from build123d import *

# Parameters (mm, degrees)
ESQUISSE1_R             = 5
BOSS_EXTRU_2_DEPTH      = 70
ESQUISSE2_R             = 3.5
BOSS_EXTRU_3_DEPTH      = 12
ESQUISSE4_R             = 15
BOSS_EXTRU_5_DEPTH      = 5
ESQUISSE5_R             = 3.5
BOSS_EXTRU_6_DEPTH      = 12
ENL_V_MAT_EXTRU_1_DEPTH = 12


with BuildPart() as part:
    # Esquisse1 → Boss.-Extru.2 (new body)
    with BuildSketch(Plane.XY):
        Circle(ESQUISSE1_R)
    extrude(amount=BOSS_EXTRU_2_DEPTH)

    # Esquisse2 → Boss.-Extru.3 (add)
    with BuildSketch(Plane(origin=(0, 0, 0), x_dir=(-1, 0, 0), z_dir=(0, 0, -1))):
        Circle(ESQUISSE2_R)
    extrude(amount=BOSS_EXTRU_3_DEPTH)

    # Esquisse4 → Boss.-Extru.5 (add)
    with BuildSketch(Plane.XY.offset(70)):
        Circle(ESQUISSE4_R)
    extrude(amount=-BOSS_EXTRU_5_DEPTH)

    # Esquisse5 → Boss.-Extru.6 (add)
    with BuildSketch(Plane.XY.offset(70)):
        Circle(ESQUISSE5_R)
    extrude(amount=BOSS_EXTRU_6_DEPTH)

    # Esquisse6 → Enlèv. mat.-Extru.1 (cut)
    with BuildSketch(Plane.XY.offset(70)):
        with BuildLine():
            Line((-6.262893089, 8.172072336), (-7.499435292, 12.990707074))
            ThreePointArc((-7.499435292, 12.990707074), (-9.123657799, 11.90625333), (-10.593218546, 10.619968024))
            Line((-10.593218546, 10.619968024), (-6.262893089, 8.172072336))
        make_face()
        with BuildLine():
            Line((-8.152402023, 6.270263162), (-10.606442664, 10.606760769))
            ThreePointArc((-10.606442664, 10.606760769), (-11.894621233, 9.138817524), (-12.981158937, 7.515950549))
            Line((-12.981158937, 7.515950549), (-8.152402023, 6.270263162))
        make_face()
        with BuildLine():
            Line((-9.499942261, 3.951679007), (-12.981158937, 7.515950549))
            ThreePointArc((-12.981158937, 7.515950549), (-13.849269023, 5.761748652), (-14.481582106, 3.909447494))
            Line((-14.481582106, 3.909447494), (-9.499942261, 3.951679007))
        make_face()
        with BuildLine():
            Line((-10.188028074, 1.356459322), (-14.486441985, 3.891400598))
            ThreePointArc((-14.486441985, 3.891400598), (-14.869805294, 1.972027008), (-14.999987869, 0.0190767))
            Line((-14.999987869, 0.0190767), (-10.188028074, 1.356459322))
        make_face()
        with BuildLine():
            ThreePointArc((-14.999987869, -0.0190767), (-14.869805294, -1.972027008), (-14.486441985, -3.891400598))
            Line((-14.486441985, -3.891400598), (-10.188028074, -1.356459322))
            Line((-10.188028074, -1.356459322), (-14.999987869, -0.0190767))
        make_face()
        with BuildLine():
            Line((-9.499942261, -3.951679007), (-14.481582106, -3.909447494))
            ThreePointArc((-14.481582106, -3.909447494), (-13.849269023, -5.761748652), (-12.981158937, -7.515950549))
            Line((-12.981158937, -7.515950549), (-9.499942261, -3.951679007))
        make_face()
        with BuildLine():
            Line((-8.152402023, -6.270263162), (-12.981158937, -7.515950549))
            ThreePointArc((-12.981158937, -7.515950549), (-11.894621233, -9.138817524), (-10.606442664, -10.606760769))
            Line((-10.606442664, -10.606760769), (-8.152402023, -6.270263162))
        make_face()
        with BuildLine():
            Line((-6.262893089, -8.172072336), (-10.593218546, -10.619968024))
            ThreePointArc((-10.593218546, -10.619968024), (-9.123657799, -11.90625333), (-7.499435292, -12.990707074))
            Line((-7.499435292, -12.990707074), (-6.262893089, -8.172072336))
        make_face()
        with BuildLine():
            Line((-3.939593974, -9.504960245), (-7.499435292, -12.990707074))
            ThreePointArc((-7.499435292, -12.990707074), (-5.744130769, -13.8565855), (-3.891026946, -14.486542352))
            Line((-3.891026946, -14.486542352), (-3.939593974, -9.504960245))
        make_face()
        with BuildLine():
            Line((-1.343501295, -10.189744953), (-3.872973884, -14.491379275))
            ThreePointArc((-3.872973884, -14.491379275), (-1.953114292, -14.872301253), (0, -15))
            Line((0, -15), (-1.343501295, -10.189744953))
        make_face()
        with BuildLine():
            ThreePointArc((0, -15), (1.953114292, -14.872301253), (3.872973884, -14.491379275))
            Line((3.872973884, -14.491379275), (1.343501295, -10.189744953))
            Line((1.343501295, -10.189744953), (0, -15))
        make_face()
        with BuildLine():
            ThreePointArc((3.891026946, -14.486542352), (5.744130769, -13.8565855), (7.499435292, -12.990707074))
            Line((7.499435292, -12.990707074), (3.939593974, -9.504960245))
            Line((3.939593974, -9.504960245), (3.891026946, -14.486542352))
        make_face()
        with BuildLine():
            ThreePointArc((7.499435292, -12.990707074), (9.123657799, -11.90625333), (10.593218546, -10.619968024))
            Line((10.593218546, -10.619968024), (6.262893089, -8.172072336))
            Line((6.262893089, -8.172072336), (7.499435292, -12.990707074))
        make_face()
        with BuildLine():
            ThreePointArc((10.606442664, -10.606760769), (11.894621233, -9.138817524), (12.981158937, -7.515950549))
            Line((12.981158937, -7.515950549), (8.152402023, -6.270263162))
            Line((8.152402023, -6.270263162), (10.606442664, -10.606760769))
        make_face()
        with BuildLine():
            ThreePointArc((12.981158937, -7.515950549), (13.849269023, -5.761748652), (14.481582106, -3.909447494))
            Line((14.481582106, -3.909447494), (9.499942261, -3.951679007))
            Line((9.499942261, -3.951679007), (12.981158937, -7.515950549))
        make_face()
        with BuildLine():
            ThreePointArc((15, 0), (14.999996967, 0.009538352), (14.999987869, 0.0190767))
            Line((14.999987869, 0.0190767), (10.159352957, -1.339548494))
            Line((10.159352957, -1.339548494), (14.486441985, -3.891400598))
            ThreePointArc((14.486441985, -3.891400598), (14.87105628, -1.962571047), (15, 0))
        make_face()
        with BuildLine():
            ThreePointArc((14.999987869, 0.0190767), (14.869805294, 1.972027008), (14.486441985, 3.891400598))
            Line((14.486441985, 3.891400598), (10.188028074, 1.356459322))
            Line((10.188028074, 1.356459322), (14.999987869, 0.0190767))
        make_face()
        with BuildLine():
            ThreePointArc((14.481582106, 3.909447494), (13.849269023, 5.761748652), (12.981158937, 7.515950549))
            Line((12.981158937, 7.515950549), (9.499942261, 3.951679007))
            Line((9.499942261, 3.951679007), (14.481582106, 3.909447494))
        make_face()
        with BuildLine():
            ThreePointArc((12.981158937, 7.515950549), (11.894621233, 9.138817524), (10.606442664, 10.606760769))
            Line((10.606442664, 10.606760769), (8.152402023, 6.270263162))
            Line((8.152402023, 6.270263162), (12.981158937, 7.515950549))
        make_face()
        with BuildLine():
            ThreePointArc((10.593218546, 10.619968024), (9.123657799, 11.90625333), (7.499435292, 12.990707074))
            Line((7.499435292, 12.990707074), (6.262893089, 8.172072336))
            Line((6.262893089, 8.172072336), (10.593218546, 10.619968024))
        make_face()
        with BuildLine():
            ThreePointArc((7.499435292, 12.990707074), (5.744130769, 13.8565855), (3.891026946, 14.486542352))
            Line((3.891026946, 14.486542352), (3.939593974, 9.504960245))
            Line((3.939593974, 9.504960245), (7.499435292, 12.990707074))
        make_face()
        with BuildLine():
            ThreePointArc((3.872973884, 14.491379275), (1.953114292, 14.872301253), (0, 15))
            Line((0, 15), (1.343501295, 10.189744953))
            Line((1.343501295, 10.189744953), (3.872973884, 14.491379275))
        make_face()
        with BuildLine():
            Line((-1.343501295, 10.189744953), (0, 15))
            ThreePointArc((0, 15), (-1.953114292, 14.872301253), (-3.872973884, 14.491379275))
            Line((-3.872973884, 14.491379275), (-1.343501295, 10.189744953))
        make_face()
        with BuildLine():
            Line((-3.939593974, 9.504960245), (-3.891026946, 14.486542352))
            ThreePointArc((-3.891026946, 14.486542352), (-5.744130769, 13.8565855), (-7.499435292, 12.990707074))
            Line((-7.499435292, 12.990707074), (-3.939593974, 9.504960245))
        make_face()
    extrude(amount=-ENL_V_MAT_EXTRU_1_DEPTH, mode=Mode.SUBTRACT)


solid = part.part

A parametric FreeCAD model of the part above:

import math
import FreeCAD as App
import Part
import Sketcher

V = App.Vector

doc = App.newDocument("Part")
body = doc.addObject("PartDesign::Body", "Body")

sketch1 = doc.addObject("Sketcher::SketchObject", "Sketch")
body.addObject(sketch1)
sketch1.AttachmentSupport = (doc.XY_Plane, [""])
sketch1.MapMode = "FlatFace"
sketch1.addGeometry(Part.Circle(V(0, 0, 0), V(0, 0, 1), 5), False)
sketch1.addConstraint([
    Sketcher.Constraint("Coincident", 0, 3, -1, 1),
    Sketcher.Constraint("Diameter", 0, 10.0),
])
pad1 = doc.addObject("PartDesign::Pad", "Pad")
body.addObject(pad1)
pad1.Profile = sketch1
pad1.Length = 70

sketch2 = doc.addObject("Sketcher::SketchObject", "Sketch001")
body.addObject(sketch2)
sketch2.AttachmentSupport = (doc.XY_Plane, [""])
sketch2.MapMode = "FlatFace"
sketch2.addGeometry(Part.Circle(V(0, 0, 0), V(0, 0, 1), 3.5), False)
sketch2.addConstraint([
    Sketcher.Constraint("Coincident", 0, 3, -1, 1),
    Sketcher.Constraint("Diameter", 0, 7.0),
])
pad2 = doc.addObject("PartDesign::Pad", "Pad001")
body.addObject(pad2)
pad2.Profile = sketch2
pad2.Length = 12
pad2.Reversed = True

sketch3 = doc.addObject("Sketcher::SketchObject", "Sketch002")
body.addObject(sketch3)
sketch3.AttachmentSupport = (doc.XY_Plane, [""])
sketch3.MapMode = "FlatFace"
sketch3.AttachmentOffset = App.Placement(V(0, 0, 70), App.Rotation())
sketch3.addGeometry(Part.Circle(V(0, 0, 0), V(0, 0, 1), 15), False)
sketch3.addConstraint([
    Sketcher.Constraint("Coincident", 0, 3, -1, 1),
    Sketcher.Constraint("Diameter", 0, 30.0),
])
pad3 = doc.addObject("PartDesign::Pad", "Pad002")
body.addObject(pad3)
pad3.Profile = sketch3
pad3.Length = 5
pad3.Reversed = True

sketch4 = doc.addObject("Sketcher::SketchObject", "Sketch003")
body.addObject(sketch4)
sketch4.AttachmentSupport = (doc.XY_Plane, [""])
sketch4.MapMode = "FlatFace"
sketch4.AttachmentOffset = App.Placement(V(0, 0, 70), App.Rotation())
sketch4.addGeometry(Part.Circle(V(0, 0, 0), V(0, 0, 1), 3.5), False)
sketch4.addConstraint([
    Sketcher.Constraint("Coincident", 0, 3, -1, 1),
    Sketcher.Constraint("Diameter", 0, 7.0),
])
pad4 = doc.addObject("PartDesign::Pad", "Pad003")
body.addObject(pad4)
pad4.Profile = sketch4
pad4.Length = 12

sketch5 = doc.addObject("Sketcher::SketchObject", "Sketch004")
body.addObject(sketch5)
sketch5.AttachmentSupport = (doc.XY_Plane, [""])
sketch5.MapMode = "FlatFace"
sketch5.AttachmentOffset = App.Placement(V(0, 0, 70), App.Rotation())
sketch5.addGeometry([
    Part.LineSegment(V(-6.263, 8.172, 0), V(-7.499, 12.991, 0)),
    Part.ArcOfCircle(Part.Circle(V(0, 0, 0), V(0, 0, 1), 15), math.radians(120), math.radians(134.93)),
    Part.LineSegment(V(-10.593, 10.62, 0), V(-6.263, 8.172, 0)),
    Part.LineSegment(V(-8.152, 6.27, 0), V(-10.606, 10.607, 0)),
    Part.ArcOfCircle(Part.Circle(V(0, 0, 0), V(0, 0, 1), 15), math.radians(135), math.radians(149.93)),
    Part.LineSegment(V(-12.981, 7.516, 0), V(-8.152, 6.27, 0)),
    Part.LineSegment(V(-9.5, 3.952, 0), V(-12.981, 7.516, 0)),
    Part.ArcOfCircle(Part.Circle(V(0, 0, 0), V(0, 0, 1), 15), math.radians(149.93), math.radians(164.89)),
    Part.LineSegment(V(-14.482, 3.909, 0), V(-9.5, 3.952, 0)),
    Part.LineSegment(V(-10.188, 1.356, 0), V(-14.486, 3.891, 0)),
    Part.ArcOfCircle(Part.Circle(V(0, 0, 0), V(0, 0, 1), 15), math.radians(164.96), math.radians(179.93)),
    Part.LineSegment(V(-15, 0.019, 0), V(-10.188, 1.356, 0)),
    Part.ArcOfCircle(Part.Circle(V(0, 0, 0), V(0, 0, 1), 15), math.radians(-179.93), math.radians(-164.96)),
    Part.LineSegment(V(-14.486, -3.891, 0), V(-10.188, -1.356, 0)),
    Part.LineSegment(V(-10.188, -1.356, 0), V(-15, -0.019, 0)),
    Part.LineSegment(V(-9.5, -3.952, 0), V(-14.482, -3.909, 0)),
    Part.ArcOfCircle(Part.Circle(V(0, 0, 0), V(0, 0, 1), 15), math.radians(-164.89), math.radians(-149.93)),
    Part.LineSegment(V(-12.981, -7.516, 0), V(-9.5, -3.952, 0)),
    Part.LineSegment(V(-8.152, -6.27, 0), V(-12.981, -7.516, 0)),
    Part.ArcOfCircle(Part.Circle(V(0, 0, 0), V(0, 0, 1), 15), math.radians(-149.93), math.radians(-135)),
    Part.LineSegment(V(-10.606, -10.607, 0), V(-8.152, -6.27, 0)),
    Part.LineSegment(V(-6.263, -8.172, 0), V(-10.593, -10.62, 0)),
    Part.ArcOfCircle(Part.Circle(V(0, 0, 0), V(0, 0, 1), 15), math.radians(-134.93), math.radians(-120)),
    Part.LineSegment(V(-7.499, -12.991, 0), V(-6.263, -8.172, 0)),
    Part.LineSegment(V(-3.94, -9.505, 0), V(-7.499, -12.991, 0)),
    Part.ArcOfCircle(Part.Circle(V(0, 0, 0), V(0, 0, 1), 15), math.radians(-120), math.radians(-105.03)),
    Part.LineSegment(V(-3.891, -14.487, 0), V(-3.94, -9.505, 0)),
    Part.LineSegment(V(-1.344, -10.19, 0), V(-3.873, -14.491, 0)),
    Part.ArcOfCircle(Part.Circle(V(0, 0, 0), V(0, 0, 1), 15), math.radians(-104.96), math.radians(-90)),
    Part.LineSegment(V(0, -15, 0), V(-1.344, -10.19, 0)),
    Part.ArcOfCircle(Part.Circle(V(0, 0, 0), V(0, 0, 1), 15), math.radians(-90), math.radians(-75.04)),
    Part.LineSegment(V(3.873, -14.491, 0), V(1.344, -10.19, 0)),
    Part.LineSegment(V(1.344, -10.19, 0), V(0, -15, 0)),
    Part.ArcOfCircle(Part.Circle(V(0, 0, 0), V(0, 0, 1), 15), math.radians(-74.97), math.radians(-60)),
    Part.LineSegment(V(7.499, -12.991, 0), V(3.94, -9.505, 0)),
    Part.LineSegment(V(3.94, -9.505, 0), V(3.891, -14.487, 0)),
    Part.ArcOfCircle(Part.Circle(V(0, 0, 0), V(0, 0, 1), 15), math.radians(-60), math.radians(-45.07)),
    Part.LineSegment(V(10.593, -10.62, 0), V(6.263, -8.172, 0)),
    Part.LineSegment(V(6.263, -8.172, 0), V(7.499, -12.991, 0)),
    Part.ArcOfCircle(Part.Circle(V(0, 0, 0), V(0, 0, 1), 15), math.radians(-45), math.radians(-30.07)),
    Part.LineSegment(V(12.981, -7.516, 0), V(8.152, -6.27, 0)),
    Part.LineSegment(V(8.152, -6.27, 0), V(10.606, -10.607, 0)),
    Part.ArcOfCircle(Part.Circle(V(0, 0, 0), V(0, 0, 1), 15), math.radians(-30.07), math.radians(-15.11)),
    Part.LineSegment(V(14.482, -3.909, 0), V(9.5, -3.952, 0)),
    Part.LineSegment(V(9.5, -3.952, 0), V(12.981, -7.516, 0)),
    Part.ArcOfCircle(Part.Circle(V(-0.001, 0, 0), V(0, 0, 1), 15.001), math.radians(0), math.radians(0.07)),
    Part.LineSegment(V(15, 0.019, 0), V(10.159, -1.34, 0)),
    Part.LineSegment(V(10.159, -1.34, 0), V(14.486, -3.891, 0)),
    Part.ArcOfCircle(Part.Circle(V(0, 0, 0), V(0, 0, 1), 15), math.radians(-15.04), math.radians(0)),
    Part.ArcOfCircle(Part.Circle(V(0, 0, 0), V(0, 0, 1), 15), math.radians(0.07), math.radians(15.04)),
    Part.LineSegment(V(14.486, 3.891, 0), V(10.188, 1.356, 0)),
    Part.LineSegment(V(10.188, 1.356, 0), V(15, 0.019, 0)),
    Part.ArcOfCircle(Part.Circle(V(0, 0, 0), V(0, 0, 1), 15), math.radians(15.11), math.radians(30.07)),
    Part.LineSegment(V(12.981, 7.516, 0), V(9.5, 3.952, 0)),
    Part.LineSegment(V(9.5, 3.952, 0), V(14.482, 3.909, 0)),
    Part.ArcOfCircle(Part.Circle(V(0, 0, 0), V(0, 0, 1), 15), math.radians(30.07), math.radians(45)),
    Part.LineSegment(V(10.606, 10.607, 0), V(8.152, 6.27, 0)),
    Part.LineSegment(V(8.152, 6.27, 0), V(12.981, 7.516, 0)),
    Part.ArcOfCircle(Part.Circle(V(0, 0, 0), V(0, 0, 1), 15), math.radians(45.07), math.radians(60)),
    Part.LineSegment(V(7.499, 12.991, 0), V(6.263, 8.172, 0)),
    Part.LineSegment(V(6.263, 8.172, 0), V(10.593, 10.62, 0)),
    Part.ArcOfCircle(Part.Circle(V(0, 0, 0), V(0, 0, 1), 15), math.radians(60), math.radians(74.97)),
    Part.LineSegment(V(3.891, 14.487, 0), V(3.94, 9.505, 0)),
    Part.LineSegment(V(3.94, 9.505, 0), V(7.499, 12.991, 0)),
    Part.ArcOfCircle(Part.Circle(V(0, 0, 0), V(0, 0, 1), 15), math.radians(75.04), math.radians(90)),
    Part.LineSegment(V(0, 15, 0), V(1.344, 10.19, 0)),
    Part.LineSegment(V(1.344, 10.19, 0), V(3.873, 14.491, 0)),
    Part.LineSegment(V(-1.344, 10.19, 0), V(0, 15, 0)),
    Part.ArcOfCircle(Part.Circle(V(0, 0, 0), V(0, 0, 1), 15), math.radians(90), math.radians(104.96)),
    Part.LineSegment(V(-3.873, 14.491, 0), V(-1.344, 10.19, 0)),
    Part.LineSegment(V(-3.94, 9.505, 0), V(-3.891, 14.487, 0)),
    Part.ArcOfCircle(Part.Circle(V(0, 0, 0), V(0, 0, 1), 15), math.radians(105.03), math.radians(120)),
    Part.LineSegment(V(-7.499, 12.991, 0), V(-3.94, 9.505, 0)),
], False)
sketch5.addConstraint([
    Sketcher.Constraint("Coincident", 0, 2, 1, 1),
    Sketcher.Constraint("Coincident", 1, 2, 2, 1),
    Sketcher.Constraint("Coincident", 2, 2, 0, 1),
    Sketcher.Constraint("Coincident", 3, 2, 4, 1),
    Sketcher.Constraint("Coincident", 4, 2, 5, 1),
    Sketcher.Constraint("Coincident", 5, 2, 3, 1),
    Sketcher.Constraint("Coincident", 6, 2, 7, 1),
    Sketcher.Constraint("Coincident", 7, 2, 8, 1),
    Sketcher.Constraint("Coincident", 8, 2, 6, 1),
    Sketcher.Constraint("Coincident", 9, 2, 10, 1),
    Sketcher.Constraint("Coincident", 10, 2, 11, 1),
    Sketcher.Constraint("Coincident", 11, 2, 9, 1),
    Sketcher.Constraint("Coincident", 12, 2, 13, 1),
    Sketcher.Constraint("Coincident", 13, 2, 14, 1),
    Sketcher.Constraint("Coincident", 14, 2, 12, 1),
    Sketcher.Constraint("Coincident", 15, 2, 16, 1),
    Sketcher.Constraint("Coincident", 16, 2, 17, 1),
    Sketcher.Constraint("Coincident", 17, 2, 15, 1),
    Sketcher.Constraint("Coincident", 18, 2, 19, 1),
    Sketcher.Constraint("Coincident", 19, 2, 20, 1),
    Sketcher.Constraint("Coincident", 20, 2, 18, 1),
    Sketcher.Constraint("Coincident", 21, 2, 22, 1),
    Sketcher.Constraint("Coincident", 22, 2, 23, 1),
    Sketcher.Constraint("Coincident", 23, 2, 21, 1),
    Sketcher.Constraint("Coincident", 24, 2, 25, 1),
    Sketcher.Constraint("Coincident", 25, 2, 26, 1),
    Sketcher.Constraint("Coincident", 26, 2, 24, 1),
    Sketcher.Constraint("Coincident", 27, 2, 28, 1),
    Sketcher.Constraint("Coincident", 28, 2, 29, 1),
    Sketcher.Constraint("Coincident", 29, 2, 27, 1),
    Sketcher.Constraint("Coincident", 30, 2, 31, 1),
    Sketcher.Constraint("Coincident", 31, 2, 32, 1),
    Sketcher.Constraint("Coincident", 32, 2, 30, 1),
    Sketcher.Constraint("Coincident", 33, 2, 34, 1),
    Sketcher.Constraint("Coincident", 34, 2, 35, 1),
    Sketcher.Constraint("Coincident", 35, 2, 33, 1),
    Sketcher.Constraint("Coincident", 36, 2, 37, 1),
    Sketcher.Constraint("Coincident", 37, 2, 38, 1),
    Sketcher.Constraint("Coincident", 38, 2, 36, 1),
    Sketcher.Constraint("Coincident", 39, 2, 40, 1),
    Sketcher.Constraint("Coincident", 40, 2, 41, 1),
    Sketcher.Constraint("Coincident", 41, 2, 39, 1),
    Sketcher.Constraint("Coincident", 42, 2, 43, 1),
    Sketcher.Constraint("Coincident", 43, 2, 44, 1),
    Sketcher.Constraint("Coincident", 44, 2, 42, 1),
    Sketcher.Constraint("Coincident", 45, 2, 46, 1),
    Sketcher.Constraint("Coincident", 46, 2, 47, 1),
    Sketcher.Constraint("Coincident", 47, 2, 48, 1),
    Sketcher.Constraint("Tangent", 48, 2, 45, 1),
    Sketcher.Constraint("Coincident", 49, 2, 50, 1),
    Sketcher.Constraint("Coincident", 50, 2, 51, 1),
    Sketcher.Constraint("Coincident", 51, 2, 49, 1),
    Sketcher.Constraint("Coincident", 52, 2, 53, 1),
    Sketcher.Constraint("Coincident", 53, 2, 54, 1),
    Sketcher.Constraint("Coincident", 54, 2, 52, 1),
    Sketcher.Constraint("Coincident", 55, 2, 56, 1),
    Sketcher.Constraint("Coincident", 56, 2, 57, 1),
    Sketcher.Constraint("Coincident", 57, 2, 55, 1),
    Sketcher.Constraint("Coincident", 58, 2, 59, 1),
    Sketcher.Constraint("Coincident", 59, 2, 60, 1),
    Sketcher.Constraint("Coincident", 60, 2, 58, 1),
    Sketcher.Constraint("Coincident", 61, 2, 62, 1),
    Sketcher.Constraint("Coincident", 62, 2, 63, 1),
    Sketcher.Constraint("Coincident", 63, 2, 61, 1),
    Sketcher.Constraint("Coincident", 64, 2, 65, 1),
    Sketcher.Constraint("Coincident", 65, 2, 66, 1),
    Sketcher.Constraint("Coincident", 66, 2, 64, 1),
    Sketcher.Constraint("Coincident", 67, 2, 68, 1),
    Sketcher.Constraint("Coincident", 68, 2, 69, 1),
    Sketcher.Constraint("Coincident", 69, 2, 67, 1),
    Sketcher.Constraint("Coincident", 70, 2, 71, 1),
    Sketcher.Constraint("Coincident", 71, 2, 72, 1),
    Sketcher.Constraint("Coincident", 72, 2, 70, 1),
    Sketcher.Constraint("Coincident", 1, 3, -1, 1),
    Sketcher.Constraint("Coincident", 4, 3, -1, 1),
    Sketcher.Constraint("Coincident", 7, 3, -1, 1),
    Sketcher.Constraint("Coincident", 10, 3, -1, 1),
    Sketcher.Constraint("Coincident", 12, 3, -1, 1),
    Sketcher.Constraint("Coincident", 16, 3, -1, 1),
    Sketcher.Constraint("Coincident", 19, 3, -1, 1),
    Sketcher.Constraint("Coincident", 22, 3, -1, 1),
    Sketcher.Constraint("Coincident", 25, 3, -1, 1),
    Sketcher.Constraint("Coincident", 28, 3, -1, 1),
    Sketcher.Constraint("Coincident", 30, 3, -1, 1),
    Sketcher.Constraint("Coincident", 33, 3, -1, 1),
    Sketcher.Constraint("Coincident", 36, 3, -1, 1),
    Sketcher.Constraint("Coincident", 39, 3, -1, 1),
    Sketcher.Constraint("Coincident", 42, 3, -1, 1),
    Sketcher.Constraint("Coincident", 48, 3, -1, 1),
    Sketcher.Constraint("Coincident", 49, 3, -1, 1),
    Sketcher.Constraint("Coincident", 52, 3, -1, 1),
    Sketcher.Constraint("Coincident", 55, 3, -1, 1),
    Sketcher.Constraint("Coincident", 58, 3, -1, 1),
    Sketcher.Constraint("Coincident", 61, 3, -1, 1),
    Sketcher.Constraint("Coincident", 64, 3, -1, 1),
    Sketcher.Constraint("Coincident", 68, 3, -1, 1),
    Sketcher.Constraint("Coincident", 71, 3, -1, 1),
    Sketcher.Constraint("Coincident", 6, 2, 4, 2),
    Sketcher.Constraint("Coincident", 18, 2, 16, 2),
    Sketcher.Constraint("Coincident", 24, 2, 22, 2),
    Sketcher.Constraint("Coincident", 32, 2, 28, 2),
    Sketcher.Constraint("Coincident", 38, 2, 33, 2),
    Sketcher.Constraint("Coincident", 44, 2, 39, 2),
    Sketcher.Constraint("Coincident", 51, 2, 45, 2),
    Sketcher.Constraint("Coincident", 57, 2, 52, 2),
    Sketcher.Constraint("Coincident", 63, 2, 58, 2),
    Sketcher.Constraint("Coincident", 67, 2, 64, 2),
    Sketcher.Constraint("Coincident", 71, 2, 0, 2),
    Sketcher.Constraint("Equal", 1, 4),
    Sketcher.Constraint("Equal", 7, 10),
    Sketcher.Constraint("Equal", 10, 12),
    Sketcher.Constraint("Equal", 12, 16),
    Sketcher.Constraint("Equal", 19, 22),
    Sketcher.Constraint("Equal", 25, 28),
    Sketcher.Constraint("Equal", 30, 33),
    Sketcher.Constraint("Equal", 36, 39),
    Sketcher.Constraint("Equal", 42, 48),
    Sketcher.Constraint("Equal", 49, 52),
    Sketcher.Constraint("Equal", 55, 58),
    Sketcher.Constraint("Equal", 61, 64),
    Sketcher.Constraint("Symmetric", 2, 2, 37, 2, -1, 1),
    Sketcher.Constraint("Symmetric", 5, 2, 40, 2, -1, 1),
    Sketcher.Constraint("Symmetric", 8, 2, 43, 2, -1, 1),
    Sketcher.Constraint("Symmetric", 13, 2, 50, 2, -1, 1),
    Sketcher.Constraint("Symmetric", 17, 2, 53, 2, -1, 1),
    Sketcher.Constraint("Symmetric", 20, 2, 56, 2, -1, 1),
    Sketcher.Constraint("Symmetric", 23, 2, 59, 2, -1, 1),
    Sketcher.Constraint("Symmetric", 26, 2, 62, 2, -1, 1),
    Sketcher.Constraint("Symmetric", 29, 2, 65, 2, -1, 1),
    Sketcher.Constraint("Symmetric", 31, 2, 69, 2, -1, 1),
    Sketcher.Constraint("Symmetric", 34, 2, 72, 2, -1, 1),
    Sketcher.Constraint("Symmetric", 29, 2, 31, 2, -2),
    Sketcher.Constraint("Symmetric", 26, 2, 34, 2, -2),
    Sketcher.Constraint("Symmetric", 23, 2, 37, 2, -2),
    Sketcher.Constraint("Symmetric", 20, 2, 40, 2, -2),
    Sketcher.Constraint("Symmetric", 17, 2, 43, 2, -2),
    Sketcher.Constraint("Symmetric", 11, 2, 50, 2, -2),
    Sketcher.Constraint("PointOnObject", 28, 2, -2),
    Sketcher.Constraint("PointOnObject", 48, 2, -1),
    Sketcher.Constraint("PointOnObject", 64, 2, -2),
    Sketcher.Constraint("Parallel", 2, 37),
    Sketcher.Constraint("Parallel", 0, 38),
    Sketcher.Constraint("Parallel", 5, 40),
    Sketcher.Constraint("Parallel", 3, 41),
    Sketcher.Constraint("Parallel", 8, 43),
    Sketcher.Constraint("Parallel", 9, 47),
    Sketcher.Constraint("Parallel", 13, 50),
    Sketcher.Constraint("Parallel", 14, 51),
    Sketcher.Constraint("Parallel", 17, 53),
    Sketcher.Constraint("Parallel", 15, 54),
    Sketcher.Constraint("Parallel", 20, 56),
    Sketcher.Constraint("Parallel", 23, 59),
    Sketcher.Constraint("Parallel", 21, 60),
    Sketcher.Constraint("Parallel", 26, 62),
    Sketcher.Constraint("Parallel", 27, 66),
    Sketcher.Constraint("Parallel", 31, 69),
    Sketcher.Constraint("Parallel", 35, 70),
    Sketcher.Constraint("Horizontal", 27, 2, 30, 2),
    Sketcher.Constraint("Horizontal", 24, 2, 33, 2),
    Sketcher.Constraint("Horizontal", 25, 2, 35, 2),
    Sketcher.Constraint("Horizontal", 21, 2, 36, 2),
    Sketcher.Constraint("Horizontal", 18, 2, 39, 2),
    Sketcher.Constraint("Horizontal", 19, 2, 41, 2),
    Sketcher.Constraint("Horizontal", 15, 2, 42, 2),
    Sketcher.Constraint("Horizontal", 10, 2, 45, 2),
    Sketcher.Constraint("Horizontal", 12, 2, 47, 2),
    Sketcher.Constraint("Horizontal", 9, 2, 49, 2),
    Sketcher.Constraint("Equal", 17, 24),
    Sketcher.Constraint("Equal", 15, 26),
    Sketcher.Constraint("Equal", 13, 27),
    Sketcher.Constraint("Equal", 14, 29),
    Sketcher.Constraint("Radius", 1, 15.0),
    Sketcher.Constraint("Radius", 45, 15.000849),
    Sketcher.Constraint("DistanceY", -1, 1, 9, 2, 3.891401),
    Sketcher.Constraint("DistanceX", 29, 2, -1, 1, 1.343501),
    Sketcher.Constraint("Distance", 6, 4.982259),
    Sketcher.Constraint("Distance", 8, 4.981819),
    Sketcher.Constraint("Distance", 9, 4.990219),
    Sketcher.Constraint("Distance", 11, 4.994352),
    Sketcher.Constraint("Distance", 47, 5.02351),
    Sketcher.Constraint("DistanceX", 1, 2, -1, 1, 10.593219),
    Sketcher.Constraint("DistanceY", -1, 1, 3, 2, 10.606761),
    Sketcher.Constraint("DistanceX", 4, 2, -1, 1, 12.981159),
    Sketcher.Constraint("DistanceY", -1, 1, 8, 2, 3.951679),
    Sketcher.Constraint("DistanceX", 11, 2, -1, 1, 10.188028),
    Sketcher.Constraint("DistanceY", 26, 2, -1, 1, 9.50496),
    Sketcher.Constraint("Distance", 0, 4.974764),
    Sketcher.Constraint("Distance", 2, 4.974325),
    Sketcher.Constraint("Distance", 3, 4.982723),
    Sketcher.Constraint("Distance", 5, 4.986846),
    Sketcher.Constraint("DistanceX", 0, 2, -1, 1, 7.499435),
])
pocket1 = doc.addObject("PartDesign::Pocket", "Pocket")
body.addObject(pocket1)
pocket1.Profile = sketch5
pocket1.Length = 12

doc.recompute()
